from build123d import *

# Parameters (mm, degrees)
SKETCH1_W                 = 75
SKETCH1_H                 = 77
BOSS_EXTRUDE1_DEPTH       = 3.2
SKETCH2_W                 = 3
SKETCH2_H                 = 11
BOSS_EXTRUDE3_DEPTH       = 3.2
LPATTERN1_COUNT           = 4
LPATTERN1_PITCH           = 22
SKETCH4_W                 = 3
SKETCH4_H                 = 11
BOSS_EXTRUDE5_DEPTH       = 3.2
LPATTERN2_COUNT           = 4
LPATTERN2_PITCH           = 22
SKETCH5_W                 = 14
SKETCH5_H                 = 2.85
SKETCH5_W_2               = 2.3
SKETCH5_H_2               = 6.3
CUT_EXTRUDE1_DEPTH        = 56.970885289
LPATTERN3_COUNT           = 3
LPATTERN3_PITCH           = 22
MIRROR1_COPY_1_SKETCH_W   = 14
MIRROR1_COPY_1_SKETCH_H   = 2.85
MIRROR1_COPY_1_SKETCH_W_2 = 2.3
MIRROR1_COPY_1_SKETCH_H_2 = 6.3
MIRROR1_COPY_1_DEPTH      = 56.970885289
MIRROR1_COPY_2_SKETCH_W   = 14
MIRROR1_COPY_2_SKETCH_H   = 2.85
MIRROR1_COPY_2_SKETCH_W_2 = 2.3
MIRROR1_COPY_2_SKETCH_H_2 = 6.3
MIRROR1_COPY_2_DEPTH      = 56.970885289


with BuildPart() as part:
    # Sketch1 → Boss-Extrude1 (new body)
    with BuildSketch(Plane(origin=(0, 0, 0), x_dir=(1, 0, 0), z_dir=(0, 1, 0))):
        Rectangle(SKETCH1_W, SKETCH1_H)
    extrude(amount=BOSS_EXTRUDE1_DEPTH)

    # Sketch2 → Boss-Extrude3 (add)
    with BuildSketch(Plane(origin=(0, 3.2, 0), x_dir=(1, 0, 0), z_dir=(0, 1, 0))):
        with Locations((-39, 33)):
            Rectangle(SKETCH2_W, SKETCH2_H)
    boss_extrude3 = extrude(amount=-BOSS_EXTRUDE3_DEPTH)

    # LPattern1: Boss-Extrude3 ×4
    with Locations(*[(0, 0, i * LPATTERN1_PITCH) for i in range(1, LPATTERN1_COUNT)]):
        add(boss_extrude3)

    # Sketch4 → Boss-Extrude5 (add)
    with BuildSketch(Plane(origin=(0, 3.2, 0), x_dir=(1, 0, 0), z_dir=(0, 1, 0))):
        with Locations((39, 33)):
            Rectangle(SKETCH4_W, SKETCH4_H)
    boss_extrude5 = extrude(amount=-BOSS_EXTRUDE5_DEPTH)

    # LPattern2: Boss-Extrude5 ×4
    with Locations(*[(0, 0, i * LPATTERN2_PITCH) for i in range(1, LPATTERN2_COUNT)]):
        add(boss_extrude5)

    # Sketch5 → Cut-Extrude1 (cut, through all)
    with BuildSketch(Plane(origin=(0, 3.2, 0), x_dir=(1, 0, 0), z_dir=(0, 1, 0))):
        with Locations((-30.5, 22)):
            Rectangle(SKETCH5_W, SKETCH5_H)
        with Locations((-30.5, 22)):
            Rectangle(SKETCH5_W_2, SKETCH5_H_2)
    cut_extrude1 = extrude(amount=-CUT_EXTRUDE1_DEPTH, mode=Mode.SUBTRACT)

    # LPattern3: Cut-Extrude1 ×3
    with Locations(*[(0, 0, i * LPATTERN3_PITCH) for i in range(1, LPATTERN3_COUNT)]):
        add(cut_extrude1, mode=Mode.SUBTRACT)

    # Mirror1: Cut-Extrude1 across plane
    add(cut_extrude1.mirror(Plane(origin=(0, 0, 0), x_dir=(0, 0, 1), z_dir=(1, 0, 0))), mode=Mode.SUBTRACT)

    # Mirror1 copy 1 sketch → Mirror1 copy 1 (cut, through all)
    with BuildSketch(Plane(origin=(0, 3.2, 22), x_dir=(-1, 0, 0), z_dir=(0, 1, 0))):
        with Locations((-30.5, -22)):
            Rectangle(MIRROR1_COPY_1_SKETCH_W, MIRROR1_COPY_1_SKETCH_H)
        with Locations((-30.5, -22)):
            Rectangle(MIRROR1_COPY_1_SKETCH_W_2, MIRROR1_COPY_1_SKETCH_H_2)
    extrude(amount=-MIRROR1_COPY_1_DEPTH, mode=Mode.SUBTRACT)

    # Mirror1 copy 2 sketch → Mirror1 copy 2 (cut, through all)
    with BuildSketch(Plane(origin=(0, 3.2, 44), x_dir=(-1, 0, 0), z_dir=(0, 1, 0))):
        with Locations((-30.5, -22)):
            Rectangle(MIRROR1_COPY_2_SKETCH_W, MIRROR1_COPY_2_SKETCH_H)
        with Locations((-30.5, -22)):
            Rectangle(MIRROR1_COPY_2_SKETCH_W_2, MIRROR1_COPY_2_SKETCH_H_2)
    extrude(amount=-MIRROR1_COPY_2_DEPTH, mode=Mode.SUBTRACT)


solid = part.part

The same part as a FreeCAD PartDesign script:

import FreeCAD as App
import Part
import Sketcher


def add_polygon(sketch, points):
    """Adds a closed chain of lines whose ends are joined by coincident constraints."""
    first, n = sketch.GeometryCount, len(points)
    for a, b in zip(points, points[1:] + points[:1]):
        sketch.addGeometry(Part.LineSegment(App.Vector(*a, 0), App.Vector(*b, 0)), False)
    for i in range(n):
        sketch.addConstraint(Sketcher.Constraint("Coincident", first + i, 2, first + (i + 1) % n, 1))

doc = App.newDocument("Part")
body = doc.addObject("PartDesign::Body", "Body")

# Sketch on XZ plane
sketch1 = doc.addObject("Sketcher::SketchObject", "Sketch")
body.addObject(sketch1)
sketch1.AttachmentSupport = (doc.XZ_Plane, [""])
sketch1.MapMode = "FlatFace"
add_polygon(sketch1, [(-38, -38), (-38, 38), (38, 38), (38, -38)])  # lines 0-3
sketch1.addConstraint(Sketcher.Constraint("Vertical", 0))
sketch1.addConstraint(Sketcher.Constraint("Horizontal", 1))
sketch1.addConstraint(Sketcher.Constraint("Vertical", 2))
sketch1.addConstraint(Sketcher.Constraint("Horizontal", 3))
sketch1.addConstraint(Sketcher.Constraint("Symmetric", 0, 2, 2, 2, -1, 1))
sketch1.addConstraint(Sketcher.Constraint("DistanceX", 1, 1, 1, 2, 75.0))
sketch1.addConstraint(Sketcher.Constraint("DistanceY", 0, 1, 0, 2, 77.0))
pad1 = doc.addObject("PartDesign::Pad", "Pad")
body.addObject(pad1)
pad1.Profile = sketch1
pad1.Length = 3.2
pad1.Reversed = True

# Sketch on XZ plane
sketch2 = doc.addObject("Sketcher::SketchObject", "Sketch001")
body.addObject(sketch2)
sketch2.AttachmentSupport = (doc.XZ_Plane, [""])
sketch2.MapMode = "FlatFace"
sketch2.AttachmentOffset = App.Placement(App.Vector(0, 0, -3.2), App.Rotation())
add_polygon(sketch2, [(-40.5, -38.5), (-40.5, -27.5), (-37.5, -27.5), (-37.5, -38.5)])  # lines 0-3
sketch2.addConstraint(Sketcher.Constraint("Vertical", 0))
sketch2.addConstraint(Sketcher.Constraint("Horizontal", 1))
sketch2.addConstraint(Sketcher.Constraint("Vertical", 2))
sketch2.addConstraint(Sketcher.Constraint("Horizontal", 3))
sketch2.addConstraint(Sketcher.Constraint("DistanceX", 1, 1, 1, 2, 3.0))
sketch2.addConstraint(Sketcher.Constraint("DistanceY", 0, 1, 0, 2, 11.0))
sketch2.addConstraint(Sketcher.Constraint("DistanceX", 0, 2, -1, 1, 40.5))
sketch2.addConstraint(Sketcher.Constraint("DistanceY", 0, 2, -1, 1, 27.5))
pad2 = doc.addObject("PartDesign::Pad", "Pad001")
body.addObject(pad2)
pad2.Profile = sketch2
pad2.Length = 3.2
doc.recompute()

linearpattern = doc.addObject("PartDesign::LinearPattern", "LinearPattern")
body.addObject(linearpattern)
linearpattern.Originals = [pad2]
linearpattern.Direction = (doc.Z_Axis, [""])
linearpattern.Mode = "offset"
linearpattern.Offset = 22
linearpattern.Occurrences = 4
body.Tip = linearpattern

# Sketch on XZ plane
sketch3 = doc.addObject("Sketcher::SketchObject", "Sketch002")
body.addObject(sketch3)
sketch3.AttachmentSupport = (doc.XZ_Plane, [""])
sketch3.MapMode = "FlatFace"
sketch3.AttachmentOffset = App.Placement(App.Vector(0, 0, -3.2), App.Rotation())
add_polygon(sketch3, [(37.5, -38.5), (37.5, -27.5), (40.5, -27.5), (40.5, -38.5)])  # lines 0-3
sketch3.addConstraint(Sketcher.Constraint("Vertical", 0))
sketch3.addConstraint(Sketcher.Constraint("Horizontal", 1))
sketch3.addConstraint(Sketcher.Constraint("Vertical", 2))
sketch3.addConstraint(Sketcher.Constraint("Horizontal", 3))
sketch3.addConstraint(Sketcher.Constraint("DistanceX", 1, 1, 1, 2, 3.0))
sketch3.addConstraint(Sketcher.Constraint("DistanceY", 0, 1, 0, 2, 11.0))
sketch3.addConstraint(Sketcher.Constraint("DistanceX", -1, 1, 0, 2, 37.5))
sketch3.addConstraint(Sketcher.Constraint("DistanceY", 0, 2, -1, 1, 27.5))
pad3 = doc.addObject("PartDesign::Pad", "Pad002")
body.addObject(pad3)
pad3.Profile = sketch3
pad3.Length = 3.2
doc.recompute()

linearpattern2 = doc.addObject("PartDesign::LinearPattern", "LinearPattern001")
body.addObject(linearpattern2)
linearpattern2.Originals = [pad3]
linearpattern2.Direction = (doc.Z_Axis, [""])
linearpattern2.Mode = "offset"
linearpattern2.Offset = 22
linearpattern2.Occurrences = 4
body.Tip = linearpattern2

# Sketch on XZ plane
sketch4 = doc.addObject("Sketcher::SketchObject", "Sketch003")
body.addObject(sketch4)
sketch4.AttachmentSupport = (doc.XZ_Plane, [""])
sketch4.MapMode = "FlatFace"
sketch4.AttachmentOffset = App.Placement(App.Vector(0, 0, -3.2), App.Rotation())
add_polygon(sketch4, [(-37.5, -23.4), (-37.5, -20.6), (-31.6, -20.6), (-31.6, -18.9), (-29.4, -18.9), (-29.4, -20.6), (-23.5, -20.6), (-23.5, -23.4), (-29.4, -23.4), (-29.4, -25.1), (-31.6, -25.1), (-31.6, -23.4)])  # lines 0-11
sketch4.addConstraint(Sketcher.Constraint("Vertical", 0))
sketch4.addConstraint(Sketcher.Constraint("Horizontal", 1))
sketch4.addConstraint(Sketcher.Constraint("Vertical", 2))
sketch4.addConstraint(Sketcher.Constraint("Horizontal", 3))
sketch4.addConstraint(Sketcher.Constraint("Vertical", 4))
sketch4.addConstraint(Sketcher.Constraint("Horizontal", 5))
sketch4.addConstraint(Sketcher.Constraint("Vertical", 6))
sketch4.addConstraint(Sketcher.Constraint("Horizontal", 7))
sketch4.addConstraint(Sketcher.Constraint("Vertical", 8))
sketch4.addConstraint(Sketcher.Constraint("Horizontal", 9))
sketch4.addConstraint(Sketcher.Constraint("Vertical", 10))
sketch4.addConstraint(Sketcher.Constraint("Horizontal", 11))
sketch4.addConstraint(Sketcher.Constraint("Horizontal", 1, 2, 4, 2))
sketch4.addConstraint(Sketcher.Constraint("Horizontal", 7, 2, 10, 2))
sketch4.addConstraint(Sketcher.Constraint("Vertical", 4, 2, 7, 2))
sketch4.addConstraint(Sketcher.Constraint("Vertical", 2, 2, 9, 2))
sketch4.addConstraint(Sketcher.Constraint("Equal", 1, 5))
sketch4.addConstraint(Sketcher.Constraint("Equal", 4, 8))
sketch4.addConstraint(Sketcher.Constraint("DistanceX", 3, 1, 3, 2, 2.3))
sketch4.addConstraint(Sketcher.Constraint("DistanceX", 0, 2, 5, 2, 14.0))
sketch4.addConstraint(Sketcher.Constraint("DistanceY", 0, 1, 0, 2, 2.85))
sketch4.addConstraint(Sketcher.Constraint("DistanceX", 0, 2, -1, 1, 37.5))
sketch4.addConstraint(Sketcher.Constraint("DistanceY", 8, 2, 3, 2, 6.3))
sketch4.addConstraint(Sketcher.Constraint("DistanceY", 2, 2, -1, 1, 18.85))
pocket1 = doc.addObject("PartDesign::Pocket", "Pocket")
body.addObject(pocket1)
pocket1.Profile = sketch4
pocket1.Type = "ThroughAll"
pocket1.Reversed = True
doc.recompute()

linearpattern3 = doc.addObject("PartDesign::LinearPattern", "LinearPattern002")
body.addObject(linearpattern3)
linearpattern3.Originals = [pocket1]
linearpattern3.Direction = (doc.Z_Axis, [""])
linearpattern3.Mode = "offset"
linearpattern3.Offset = 22
linearpattern3.Occurrences = 3
body.Tip = linearpattern3
doc.recompute()

mirrored = doc.addObject("PartDesign::Mirrored", "Mirrored")
body.addObject(mirrored)
mirrored.Originals = [pocket1]
mirrored.MirrorPlane = (doc.YZ_Plane, [""])
body.Tip = mirrored

# Sketch on XZ plane
sketch5 = doc.addObject("Sketcher::SketchObject", "Sketch004")
body.addObject(sketch5)
sketch5.AttachmentSupport = (doc.XZ_Plane, [""])
sketch5.MapMode = "FlatFace"
sketch5.AttachmentOffset = App.Placement(App.Vector(0, 0, -3.2), App.Rotation())
add_polygon(sketch5, [(37.5, 1.4), (37.5, -1.4), (31.6, -1.4), (31.6, -3.1), (29.4, -3.1), (29.4, -1.4), (23.5, -1.4), (23.5, 1.4), (29.4, 1.4), (29.4, 3.1), (31.6, 3.1), (31.6, 1.4)])  # lines 0-11
sketch5.addConstraint(Sketcher.Constraint("Vertical", 0))
sketch5.addConstraint(Sketcher.Constraint("Horizontal", 1))
sketch5.addConstraint(Sketcher.Constraint("Vertical", 2))
sketch5.addConstraint(Sketcher.Constraint("Horizontal", 3))
sketch5.addConstraint(Sketcher.Constraint("Vertical", 4))
sketch5.addConstraint(Sketcher.Constraint("Horizontal", 5))
sketch5.addConstraint(Sketcher.Constraint("Vertical", 6))
sketch5.addConstraint(Sketcher.Constraint("Horizontal", 7))
sketch5.addConstraint(Sketcher.Constraint("Vertical", 8))
sketch5.addConstraint(Sketcher.Constraint("Horizontal", 9))
sketch5.addConstraint(Sketcher.Constraint("Vertical", 10))
sketch5.addConstraint(Sketcher.Constraint("Horizontal", 11))
sketch5.addConstraint(Sketcher.Constraint("Symmetric", 4, 2, 7, 2, -1))
sketch5.addConstraint(Sketcher.Constraint("Symmetric", 2, 2, 9, 2, -1))
sketch5.addConstraint(Sketcher.Constraint("Horizontal", 1, 2, 4, 2))
sketch5.addConstraint(Sketcher.Constraint("Horizontal", 7, 2, 10, 2))
sketch5.addConstraint(Sketcher.Constraint("Equal", 1, 5))
sketch5.addConstraint(Sketcher.Constraint("DistanceX", 3, 2, 3, 1, 2.3))
sketch5.addConstraint(Sketcher.Constraint("DistanceX", 5, 2, 0, 2, 14.0))
sketch5.addConstraint(Sketcher.Constraint("DistanceY", 0, 2, 0, 1, 2.85))
sketch5.addConstraint(Sketcher.Constraint("DistanceX", -1, 1, 0, 2, 37.5))
sketch5.addConstraint(Sketcher.Constraint("DistanceY", 3, 2, 8, 2, 6.3))
pocket2 = doc.addObject("PartDesign::Pocket", "Pocket001")
body.addObject(pocket2)
pocket2.Profile = sketch5
pocket2.Type = "ThroughAll"
pocket2.Reversed = True

# Sketch on XZ plane
sketch6 = doc.addObject("Sketcher::SketchObject", "Sketch005")
body.addObject(sketch6)
sketch6.AttachmentSupport = (doc.XZ_Plane, [""])
sketch6.MapMode = "FlatFace"
sketch6.AttachmentOffset = App.Placement(App.Vector(0, 0, -3.2), App.Rotation())
add_polygon(sketch6, [(37.5, 23.4), (37.5, 20.6), (31.6, 20.6), (31.6, 18.9), (29.4, 18.9), (29.4, 20.6), (23.5, 20.6), (23.5, 23.4), (29.4, 23.4), (29.4, 25.1), (31.6, 25.1), (31.6, 23.4)])  # lines 0-11
sketch6.addConstraint(Sketcher.Constraint("Vertical", 0))
sketch6.addConstraint(Sketcher.Constraint("Horizontal", 1))
sketch6.addConstraint(Sketcher.Constraint("Vertical", 2))
sketch6.addConstraint(Sketcher.Constraint("Horizontal", 3))
sketch6.addConstraint(Sketcher.Constraint("Vertical", 4))
sketch6.addConstraint(Sketcher.Constraint("Horizontal", 5))
sketch6.addConstraint(Sketcher.Constraint("Vertical", 6))
sketch6.addConstraint(Sketcher.Constraint("Horizontal", 7))
sketch6.addConstraint(Sketcher.Constraint("Vertical", 8))
sketch6.addConstraint(Sketcher.Constraint("Horizontal", 9))
sketch6.addConstraint(Sketcher.Constraint("Vertical", 10))
sketch6.addConstraint(Sketcher.Constraint("Horizontal", 11))
sketch6.addConstraint(Sketcher.Constraint("Horizontal", 1, 2, 4, 2))
sketch6.addConstraint(Sketcher.Constraint("Horizontal", 7, 2, 10, 2))
sketch6.addConstraint(Sketcher.Constraint("Vertical", 4, 2, 7, 2))
sketch6.addConstraint(Sketcher.Constraint("Vertical", 2, 2, 9, 2))
sketch6.addConstraint(Sketcher.Constraint("Equal", 1, 5))
sketch6.addConstraint(Sketcher.Constraint("Equal", 4, 8))
sketch6.addConstraint(Sketcher.Constraint("DistanceX", 3, 2, 3, 1, 2.3))
sketch6.addConstraint(Sketcher.Constraint("DistanceX", 5, 2, 0, 2, 14.0))
sketch6.addConstraint(Sketcher.Constraint("DistanceY", 0, 2, 0, 1, 2.85))
sketch6.addConstraint(Sketcher.Constraint("DistanceX", -1, 1, 0, 2, 37.5))
sketch6.addConstraint(Sketcher.Constraint("DistanceY", 3, 2, 8, 2, 6.3))
sketch6.addConstraint(Sketcher.Constraint("DistanceY", -1, 1, 2, 2, 18.85))
pocket3 = doc.addObject("PartDesign::Pocket", "Pocket002")
body.addObject(pocket3)
pocket3.Profile = sketch6
pocket3.Type = "ThroughAll"
pocket3.Reversed = True

doc.recompute()
